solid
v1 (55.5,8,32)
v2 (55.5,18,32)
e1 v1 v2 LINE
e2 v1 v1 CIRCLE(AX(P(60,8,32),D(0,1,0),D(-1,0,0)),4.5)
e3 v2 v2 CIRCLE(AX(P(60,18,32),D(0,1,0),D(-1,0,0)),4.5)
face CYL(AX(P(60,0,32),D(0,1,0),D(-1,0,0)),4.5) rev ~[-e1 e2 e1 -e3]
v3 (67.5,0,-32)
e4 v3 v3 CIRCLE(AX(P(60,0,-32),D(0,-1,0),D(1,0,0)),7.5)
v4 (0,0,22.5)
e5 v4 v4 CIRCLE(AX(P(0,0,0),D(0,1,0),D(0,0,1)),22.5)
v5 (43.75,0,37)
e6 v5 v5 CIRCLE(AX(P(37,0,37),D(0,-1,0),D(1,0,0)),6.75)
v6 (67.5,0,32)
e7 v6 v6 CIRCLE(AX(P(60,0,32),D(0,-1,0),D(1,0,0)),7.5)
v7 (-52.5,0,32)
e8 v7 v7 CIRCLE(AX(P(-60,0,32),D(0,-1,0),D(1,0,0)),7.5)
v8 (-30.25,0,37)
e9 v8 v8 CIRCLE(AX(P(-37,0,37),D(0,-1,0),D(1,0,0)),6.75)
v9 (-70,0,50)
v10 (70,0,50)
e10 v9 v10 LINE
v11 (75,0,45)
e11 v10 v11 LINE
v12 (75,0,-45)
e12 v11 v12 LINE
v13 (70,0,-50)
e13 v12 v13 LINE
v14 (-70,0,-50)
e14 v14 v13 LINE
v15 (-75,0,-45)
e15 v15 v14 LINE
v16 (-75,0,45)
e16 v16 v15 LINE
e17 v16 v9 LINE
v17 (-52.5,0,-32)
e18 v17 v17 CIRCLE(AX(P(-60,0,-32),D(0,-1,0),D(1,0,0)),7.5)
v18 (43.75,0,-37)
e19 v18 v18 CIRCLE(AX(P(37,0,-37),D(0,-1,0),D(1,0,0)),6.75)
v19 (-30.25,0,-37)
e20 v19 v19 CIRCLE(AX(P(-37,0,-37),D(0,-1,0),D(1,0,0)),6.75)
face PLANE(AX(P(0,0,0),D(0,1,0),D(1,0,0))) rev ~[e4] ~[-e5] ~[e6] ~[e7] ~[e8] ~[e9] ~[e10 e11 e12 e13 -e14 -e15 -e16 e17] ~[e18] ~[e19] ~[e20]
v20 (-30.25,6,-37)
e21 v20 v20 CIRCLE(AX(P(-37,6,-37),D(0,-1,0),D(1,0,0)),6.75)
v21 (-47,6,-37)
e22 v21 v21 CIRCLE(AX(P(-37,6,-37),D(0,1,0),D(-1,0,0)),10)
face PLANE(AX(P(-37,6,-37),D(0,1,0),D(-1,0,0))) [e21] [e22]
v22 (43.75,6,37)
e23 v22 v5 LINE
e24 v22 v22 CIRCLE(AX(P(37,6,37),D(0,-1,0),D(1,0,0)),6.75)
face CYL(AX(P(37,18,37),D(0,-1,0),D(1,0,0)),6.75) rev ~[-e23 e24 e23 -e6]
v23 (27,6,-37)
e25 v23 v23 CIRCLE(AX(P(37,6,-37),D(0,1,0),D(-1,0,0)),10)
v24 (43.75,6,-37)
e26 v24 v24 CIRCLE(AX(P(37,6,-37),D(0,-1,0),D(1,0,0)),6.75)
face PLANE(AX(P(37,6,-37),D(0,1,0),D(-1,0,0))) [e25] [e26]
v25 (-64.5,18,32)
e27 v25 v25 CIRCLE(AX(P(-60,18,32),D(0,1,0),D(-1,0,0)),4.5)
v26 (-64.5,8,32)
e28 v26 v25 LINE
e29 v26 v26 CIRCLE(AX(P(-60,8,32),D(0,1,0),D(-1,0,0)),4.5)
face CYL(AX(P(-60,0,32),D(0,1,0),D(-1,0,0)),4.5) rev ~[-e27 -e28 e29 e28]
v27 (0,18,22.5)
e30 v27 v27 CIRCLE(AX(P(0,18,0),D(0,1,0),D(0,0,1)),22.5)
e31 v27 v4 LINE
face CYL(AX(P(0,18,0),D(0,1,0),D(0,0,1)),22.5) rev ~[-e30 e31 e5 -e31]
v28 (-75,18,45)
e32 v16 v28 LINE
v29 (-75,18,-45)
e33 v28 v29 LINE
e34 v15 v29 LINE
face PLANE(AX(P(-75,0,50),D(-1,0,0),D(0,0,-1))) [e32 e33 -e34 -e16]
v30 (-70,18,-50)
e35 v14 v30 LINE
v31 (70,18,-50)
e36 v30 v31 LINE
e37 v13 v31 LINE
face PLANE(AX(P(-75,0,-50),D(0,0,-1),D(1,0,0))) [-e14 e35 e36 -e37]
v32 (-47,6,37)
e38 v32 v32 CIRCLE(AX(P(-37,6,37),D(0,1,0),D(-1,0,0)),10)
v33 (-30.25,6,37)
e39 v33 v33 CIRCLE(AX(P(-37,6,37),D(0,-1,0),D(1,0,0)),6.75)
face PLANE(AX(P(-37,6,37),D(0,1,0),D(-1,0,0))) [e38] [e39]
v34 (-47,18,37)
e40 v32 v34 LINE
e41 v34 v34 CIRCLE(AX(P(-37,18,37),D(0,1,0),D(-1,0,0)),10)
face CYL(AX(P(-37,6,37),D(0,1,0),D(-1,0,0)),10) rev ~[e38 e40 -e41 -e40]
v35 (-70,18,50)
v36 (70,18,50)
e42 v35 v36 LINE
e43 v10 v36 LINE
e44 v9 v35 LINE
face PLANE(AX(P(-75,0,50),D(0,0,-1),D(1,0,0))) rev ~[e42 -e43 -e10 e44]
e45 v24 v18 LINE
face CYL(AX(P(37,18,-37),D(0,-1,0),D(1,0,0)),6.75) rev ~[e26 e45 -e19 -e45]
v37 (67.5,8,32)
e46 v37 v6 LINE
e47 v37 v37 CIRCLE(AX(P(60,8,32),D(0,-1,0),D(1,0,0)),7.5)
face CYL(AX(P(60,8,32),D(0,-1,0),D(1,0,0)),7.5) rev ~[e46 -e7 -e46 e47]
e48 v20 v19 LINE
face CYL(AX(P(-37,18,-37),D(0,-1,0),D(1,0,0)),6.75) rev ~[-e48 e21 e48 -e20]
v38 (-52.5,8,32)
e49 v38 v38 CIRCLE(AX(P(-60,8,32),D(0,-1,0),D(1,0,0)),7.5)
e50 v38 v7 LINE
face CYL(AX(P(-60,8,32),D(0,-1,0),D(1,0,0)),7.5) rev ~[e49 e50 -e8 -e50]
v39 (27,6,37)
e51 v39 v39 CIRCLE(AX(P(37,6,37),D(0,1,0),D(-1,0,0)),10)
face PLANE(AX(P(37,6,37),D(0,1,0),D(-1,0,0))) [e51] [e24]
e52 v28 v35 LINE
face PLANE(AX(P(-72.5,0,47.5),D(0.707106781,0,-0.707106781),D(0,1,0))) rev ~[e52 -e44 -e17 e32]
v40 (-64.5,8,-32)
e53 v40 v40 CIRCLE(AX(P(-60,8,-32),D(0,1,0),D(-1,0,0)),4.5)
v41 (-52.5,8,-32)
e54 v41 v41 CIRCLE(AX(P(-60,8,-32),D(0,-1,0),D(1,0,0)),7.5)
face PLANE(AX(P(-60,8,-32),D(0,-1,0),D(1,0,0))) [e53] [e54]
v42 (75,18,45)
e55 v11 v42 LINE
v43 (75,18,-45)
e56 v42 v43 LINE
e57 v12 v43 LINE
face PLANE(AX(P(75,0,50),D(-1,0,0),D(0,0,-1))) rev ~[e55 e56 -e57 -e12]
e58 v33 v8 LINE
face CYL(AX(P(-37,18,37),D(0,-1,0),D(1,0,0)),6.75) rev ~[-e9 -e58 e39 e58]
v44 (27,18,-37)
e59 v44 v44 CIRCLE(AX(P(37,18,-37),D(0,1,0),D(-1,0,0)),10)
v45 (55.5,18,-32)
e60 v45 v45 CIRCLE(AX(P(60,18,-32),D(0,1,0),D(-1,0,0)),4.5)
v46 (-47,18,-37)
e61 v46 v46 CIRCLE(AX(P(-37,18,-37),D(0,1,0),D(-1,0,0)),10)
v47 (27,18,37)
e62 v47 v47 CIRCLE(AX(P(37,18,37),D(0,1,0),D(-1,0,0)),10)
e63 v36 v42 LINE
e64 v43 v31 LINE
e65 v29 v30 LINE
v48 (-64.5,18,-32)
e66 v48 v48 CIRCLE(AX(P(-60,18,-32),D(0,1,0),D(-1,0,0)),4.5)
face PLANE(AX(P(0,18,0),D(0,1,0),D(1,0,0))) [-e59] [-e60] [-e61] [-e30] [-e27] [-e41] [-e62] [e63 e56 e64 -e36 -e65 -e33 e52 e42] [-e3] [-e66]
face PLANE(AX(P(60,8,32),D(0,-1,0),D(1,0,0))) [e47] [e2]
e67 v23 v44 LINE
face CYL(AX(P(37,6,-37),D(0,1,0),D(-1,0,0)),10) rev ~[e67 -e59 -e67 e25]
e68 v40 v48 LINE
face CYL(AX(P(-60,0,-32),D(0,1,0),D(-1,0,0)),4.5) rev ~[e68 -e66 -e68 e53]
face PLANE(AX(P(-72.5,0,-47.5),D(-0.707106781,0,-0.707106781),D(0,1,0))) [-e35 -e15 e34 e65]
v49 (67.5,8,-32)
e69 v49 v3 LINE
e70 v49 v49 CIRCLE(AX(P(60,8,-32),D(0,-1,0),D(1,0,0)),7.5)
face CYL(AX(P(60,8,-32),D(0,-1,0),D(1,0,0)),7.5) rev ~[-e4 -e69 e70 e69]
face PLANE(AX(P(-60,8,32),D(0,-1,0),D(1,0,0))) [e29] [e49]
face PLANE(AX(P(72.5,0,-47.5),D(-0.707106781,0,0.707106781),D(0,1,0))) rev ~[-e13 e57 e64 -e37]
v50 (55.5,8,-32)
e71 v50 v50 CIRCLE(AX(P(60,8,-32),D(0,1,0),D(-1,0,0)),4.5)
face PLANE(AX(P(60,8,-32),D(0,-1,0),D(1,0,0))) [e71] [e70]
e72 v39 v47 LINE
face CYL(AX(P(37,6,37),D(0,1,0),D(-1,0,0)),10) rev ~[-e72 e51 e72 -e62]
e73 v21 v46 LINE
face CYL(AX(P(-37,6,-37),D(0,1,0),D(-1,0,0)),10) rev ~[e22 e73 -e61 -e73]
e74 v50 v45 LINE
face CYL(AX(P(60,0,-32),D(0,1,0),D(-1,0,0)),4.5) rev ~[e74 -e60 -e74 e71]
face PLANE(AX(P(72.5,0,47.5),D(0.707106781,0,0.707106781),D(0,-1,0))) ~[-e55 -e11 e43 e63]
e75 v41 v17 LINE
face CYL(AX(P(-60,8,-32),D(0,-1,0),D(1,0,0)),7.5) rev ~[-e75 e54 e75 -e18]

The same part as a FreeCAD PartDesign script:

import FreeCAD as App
import Part
import Sketcher
from FreeCAD import Vector


def edges_at(feature, points):
    """Names of the edges that pass closest to the given points."""
    edges = feature.Shape.Edges
    near = lambda p: min(range(len(edges)), key=lambda i: edges[i].distToShape(Part.Vertex(*p))[0])
    return sorted({f"Edge{near(p) + 1}" for p in points})


def add_polygon(sketch, points):
    """Adds a closed chain of lines whose ends are joined by coincident constraints."""
    first, n = sketch.GeometryCount, len(points)
    for a, b in zip(points, points[1:] + points[:1]):
        sketch.addGeometry(Part.LineSegment(App.Vector(*a, 0), App.Vector(*b, 0)), False)
    for i in range(n):
        sketch.addConstraint(Sketcher.Constraint("Coincident", first + i, 2, first + (i + 1) % n, 1))

doc = App.newDocument("Part")
body = doc.addObject("PartDesign::Body", "Body")

# Sketch on XZ plane
sketch1 = body.newObject("Sketcher::SketchObject", "Sketch")
sketch1.AttachmentSupport = (doc.getObject("XZ_Plane"), [""])
sketch1.MapMode = "FlatFace"
add_polygon(sketch1, [(-75, -50), (-75, 50), (75, 50), (75, -50)])  # lines 0-3
sketch1.addConstraint(Sketcher.Constraint("Vertical", 0))
sketch1.addConstraint(Sketcher.Constraint("Horizontal", 1))
sketch1.addConstraint(Sketcher.Constraint("Vertical", 2))
sketch1.addConstraint(Sketcher.Constraint("Horizontal", 3))
sketch1.addConstraint(Sketcher.Constraint("Symmetric", 0, 2, 2, 2, -1, 1))
sketch1.addConstraint(Sketcher.Constraint("DistanceX", 1, 1, 1, 2, 150.0))
sketch1.addConstraint(Sketcher.Constraint("DistanceY", 0, 1, 0, 2, 100.0))
pad1 = body.newObject("PartDesign::Pad", "Pad")
pad1.Profile = sketch1
pad1.Length = 18
pad1.Reversed = True
doc.recompute()

chamfer = body.newObject("PartDesign::Chamfer", "Chamfer")
chamfer.Base = (pad1, edges_at(pad1, [
    (-75, 9, -50),
    (75, 9, -50),
    (75, 9, 50),
    (-75, 9, 50),
]))
chamfer.Size = 5

# Sketch on XZ plane
sketch2 = body.newObject("Sketcher::SketchObject", "Sketch001")
sketch2.AttachmentSupport = (doc.getObject("XZ_Plane"), [""])
sketch2.MapMode = "FlatFace"
sketch2.addGeometry(Part.Circle(Vector(-60, -32, 0), Vector(0, 0, 1), 4.5), False)
sketch2.addGeometry(Part.Circle(Vector(-60, 32, 0), Vector(0, 0, 1), 4.5), False)
sketch2.addGeometry(Part.Circle(Vector(60, 32, 0), Vector(0, 0, 1), 4.5), False)
sketch2.addGeometry(Part.Circle(Vector(60, -32, 0), Vector(0, 0, 1), 4.5), False)
sketch2.addConstraint(Sketcher.Constraint("Equal", 0, 1))
sketch2.addConstraint(Sketcher.Constraint("Equal", 1, 2))
sketch2.addConstraint(Sketcher.Constraint("Equal", 2, 3))
sketch2.addConstraint(Sketcher.Constraint("Symmetric", 0, 3, 2, 3, -1, 1))
sketch2.addConstraint(Sketcher.Constraint("Symmetric", 1, 3, 3, 3, -1, 1))
sketch2.addConstraint(Sketcher.Constraint("Symmetric", 1, 3, 2, 3, -2))
sketch2.addConstraint(Sketcher.Constraint("Diameter", 0, 9.0))
sketch2.addConstraint(Sketcher.Constraint("DistanceX", 0, 3, -1, 1, 60.0))
sketch2.addConstraint(Sketcher.Constraint("DistanceY", 0, 3, -1, 1, 32.0))
doc.recompute()
hole = body.newObject("PartDesign::Hole", "Hole")
hole.Profile = sketch2
hole.ThreadType = "None"
hole.Diameter = 9
hole.DepthType = "ThroughAll"
hole.HoleCutType = "Counterbore"
hole.HoleCutDiameter = 15
hole.HoleCutDepth = 8

# Sketch on XZ plane
sketch3 = body.newObject("Sketcher::SketchObject", "Sketch002")
sketch3.AttachmentSupport = (doc.getObject("XZ_Plane"), [""])
sketch3.MapMode = "FlatFace"
sketch3.AttachmentOffset = App.Placement(Vector(0, 0, -18), App.Rotation())
sketch3.addGeometry(Part.Circle(Vector(-37, -37, 0), Vector(0, 0, 1), 7), False)
sketch3.addGeometry(Part.Circle(Vector(37, -37, 0), Vector(0, 0, 1), 7), False)
sketch3.addGeometry(Part.Circle(Vector(37, 37, 0), Vector(0, 0, 1), 7), False)
sketch3.addGeometry(Part.Circle(Vector(-37, 37, 0), Vector(0, 0, 1), 7), False)
sketch3.addConstraint(Sketcher.Constraint("Equal", 0, 1))
sketch3.addConstraint(Sketcher.Constraint("Equal", 1, 2))
sketch3.addConstraint(Sketcher.Constraint("Equal", 2, 3))
sketch3.addConstraint(Sketcher.Constraint("Symmetric", 0, 3, 2, 3, -1, 1))
sketch3.addConstraint(Sketcher.Constraint("Symmetric", 1, 3, 3, 3, -1, 1))
sketch3.addConstraint(Sketcher.Constraint("Symmetric", 0, 3, 1, 3, -2))
sketch3.addConstraint(Sketcher.Constraint("Diameter", 0, 13.5))
sketch3.addConstraint(Sketcher.Constraint("DistanceX", 0, 3, -1, 1, 37.0))
sketch3.addConstraint(Sketcher.Constraint("DistanceY", 0, 3, -1, 1, 37.0))
doc.recompute()
hole2 = body.newObject("PartDesign::Hole", "Hole001")
hole2.Profile = sketch3
hole2.ThreadType = "None"
hole2.Diameter = 13.5
hole2.DepthType = "ThroughAll"
hole2.HoleCutType = "Counterbore"
hole2.HoleCutDiameter = 20
hole2.HoleCutDepth = 12
hole2.Reversed = True

# Sketch on XZ plane
sketch4 = body.newObject("Sketcher::SketchObject", "Sketch003")
sketch4.AttachmentSupport = (doc.getObject("XZ_Plane"), [""])
sketch4.MapMode = "FlatFace"
sketch4.AttachmentOffset = App.Placement(Vector(0, 0, -18), App.Rotation())
sketch4.addGeometry(Part.Circle(Vector(0, 0, 0), Vector(0, 0, 1), 22), False)
sketch4.addConstraint(Sketcher.Constraint("Coincident", 0, 3, -1, 1))
sketch4.addConstraint(Sketcher.Constraint("Diameter", 0, 45.0))
pocket1 = body.newObject("PartDesign::Pocket", "Pocket")
pocket1.Profile = sketch4
pocket1.Type = "ThroughAll"
pocket1.Reversed = True

doc.recompute()
